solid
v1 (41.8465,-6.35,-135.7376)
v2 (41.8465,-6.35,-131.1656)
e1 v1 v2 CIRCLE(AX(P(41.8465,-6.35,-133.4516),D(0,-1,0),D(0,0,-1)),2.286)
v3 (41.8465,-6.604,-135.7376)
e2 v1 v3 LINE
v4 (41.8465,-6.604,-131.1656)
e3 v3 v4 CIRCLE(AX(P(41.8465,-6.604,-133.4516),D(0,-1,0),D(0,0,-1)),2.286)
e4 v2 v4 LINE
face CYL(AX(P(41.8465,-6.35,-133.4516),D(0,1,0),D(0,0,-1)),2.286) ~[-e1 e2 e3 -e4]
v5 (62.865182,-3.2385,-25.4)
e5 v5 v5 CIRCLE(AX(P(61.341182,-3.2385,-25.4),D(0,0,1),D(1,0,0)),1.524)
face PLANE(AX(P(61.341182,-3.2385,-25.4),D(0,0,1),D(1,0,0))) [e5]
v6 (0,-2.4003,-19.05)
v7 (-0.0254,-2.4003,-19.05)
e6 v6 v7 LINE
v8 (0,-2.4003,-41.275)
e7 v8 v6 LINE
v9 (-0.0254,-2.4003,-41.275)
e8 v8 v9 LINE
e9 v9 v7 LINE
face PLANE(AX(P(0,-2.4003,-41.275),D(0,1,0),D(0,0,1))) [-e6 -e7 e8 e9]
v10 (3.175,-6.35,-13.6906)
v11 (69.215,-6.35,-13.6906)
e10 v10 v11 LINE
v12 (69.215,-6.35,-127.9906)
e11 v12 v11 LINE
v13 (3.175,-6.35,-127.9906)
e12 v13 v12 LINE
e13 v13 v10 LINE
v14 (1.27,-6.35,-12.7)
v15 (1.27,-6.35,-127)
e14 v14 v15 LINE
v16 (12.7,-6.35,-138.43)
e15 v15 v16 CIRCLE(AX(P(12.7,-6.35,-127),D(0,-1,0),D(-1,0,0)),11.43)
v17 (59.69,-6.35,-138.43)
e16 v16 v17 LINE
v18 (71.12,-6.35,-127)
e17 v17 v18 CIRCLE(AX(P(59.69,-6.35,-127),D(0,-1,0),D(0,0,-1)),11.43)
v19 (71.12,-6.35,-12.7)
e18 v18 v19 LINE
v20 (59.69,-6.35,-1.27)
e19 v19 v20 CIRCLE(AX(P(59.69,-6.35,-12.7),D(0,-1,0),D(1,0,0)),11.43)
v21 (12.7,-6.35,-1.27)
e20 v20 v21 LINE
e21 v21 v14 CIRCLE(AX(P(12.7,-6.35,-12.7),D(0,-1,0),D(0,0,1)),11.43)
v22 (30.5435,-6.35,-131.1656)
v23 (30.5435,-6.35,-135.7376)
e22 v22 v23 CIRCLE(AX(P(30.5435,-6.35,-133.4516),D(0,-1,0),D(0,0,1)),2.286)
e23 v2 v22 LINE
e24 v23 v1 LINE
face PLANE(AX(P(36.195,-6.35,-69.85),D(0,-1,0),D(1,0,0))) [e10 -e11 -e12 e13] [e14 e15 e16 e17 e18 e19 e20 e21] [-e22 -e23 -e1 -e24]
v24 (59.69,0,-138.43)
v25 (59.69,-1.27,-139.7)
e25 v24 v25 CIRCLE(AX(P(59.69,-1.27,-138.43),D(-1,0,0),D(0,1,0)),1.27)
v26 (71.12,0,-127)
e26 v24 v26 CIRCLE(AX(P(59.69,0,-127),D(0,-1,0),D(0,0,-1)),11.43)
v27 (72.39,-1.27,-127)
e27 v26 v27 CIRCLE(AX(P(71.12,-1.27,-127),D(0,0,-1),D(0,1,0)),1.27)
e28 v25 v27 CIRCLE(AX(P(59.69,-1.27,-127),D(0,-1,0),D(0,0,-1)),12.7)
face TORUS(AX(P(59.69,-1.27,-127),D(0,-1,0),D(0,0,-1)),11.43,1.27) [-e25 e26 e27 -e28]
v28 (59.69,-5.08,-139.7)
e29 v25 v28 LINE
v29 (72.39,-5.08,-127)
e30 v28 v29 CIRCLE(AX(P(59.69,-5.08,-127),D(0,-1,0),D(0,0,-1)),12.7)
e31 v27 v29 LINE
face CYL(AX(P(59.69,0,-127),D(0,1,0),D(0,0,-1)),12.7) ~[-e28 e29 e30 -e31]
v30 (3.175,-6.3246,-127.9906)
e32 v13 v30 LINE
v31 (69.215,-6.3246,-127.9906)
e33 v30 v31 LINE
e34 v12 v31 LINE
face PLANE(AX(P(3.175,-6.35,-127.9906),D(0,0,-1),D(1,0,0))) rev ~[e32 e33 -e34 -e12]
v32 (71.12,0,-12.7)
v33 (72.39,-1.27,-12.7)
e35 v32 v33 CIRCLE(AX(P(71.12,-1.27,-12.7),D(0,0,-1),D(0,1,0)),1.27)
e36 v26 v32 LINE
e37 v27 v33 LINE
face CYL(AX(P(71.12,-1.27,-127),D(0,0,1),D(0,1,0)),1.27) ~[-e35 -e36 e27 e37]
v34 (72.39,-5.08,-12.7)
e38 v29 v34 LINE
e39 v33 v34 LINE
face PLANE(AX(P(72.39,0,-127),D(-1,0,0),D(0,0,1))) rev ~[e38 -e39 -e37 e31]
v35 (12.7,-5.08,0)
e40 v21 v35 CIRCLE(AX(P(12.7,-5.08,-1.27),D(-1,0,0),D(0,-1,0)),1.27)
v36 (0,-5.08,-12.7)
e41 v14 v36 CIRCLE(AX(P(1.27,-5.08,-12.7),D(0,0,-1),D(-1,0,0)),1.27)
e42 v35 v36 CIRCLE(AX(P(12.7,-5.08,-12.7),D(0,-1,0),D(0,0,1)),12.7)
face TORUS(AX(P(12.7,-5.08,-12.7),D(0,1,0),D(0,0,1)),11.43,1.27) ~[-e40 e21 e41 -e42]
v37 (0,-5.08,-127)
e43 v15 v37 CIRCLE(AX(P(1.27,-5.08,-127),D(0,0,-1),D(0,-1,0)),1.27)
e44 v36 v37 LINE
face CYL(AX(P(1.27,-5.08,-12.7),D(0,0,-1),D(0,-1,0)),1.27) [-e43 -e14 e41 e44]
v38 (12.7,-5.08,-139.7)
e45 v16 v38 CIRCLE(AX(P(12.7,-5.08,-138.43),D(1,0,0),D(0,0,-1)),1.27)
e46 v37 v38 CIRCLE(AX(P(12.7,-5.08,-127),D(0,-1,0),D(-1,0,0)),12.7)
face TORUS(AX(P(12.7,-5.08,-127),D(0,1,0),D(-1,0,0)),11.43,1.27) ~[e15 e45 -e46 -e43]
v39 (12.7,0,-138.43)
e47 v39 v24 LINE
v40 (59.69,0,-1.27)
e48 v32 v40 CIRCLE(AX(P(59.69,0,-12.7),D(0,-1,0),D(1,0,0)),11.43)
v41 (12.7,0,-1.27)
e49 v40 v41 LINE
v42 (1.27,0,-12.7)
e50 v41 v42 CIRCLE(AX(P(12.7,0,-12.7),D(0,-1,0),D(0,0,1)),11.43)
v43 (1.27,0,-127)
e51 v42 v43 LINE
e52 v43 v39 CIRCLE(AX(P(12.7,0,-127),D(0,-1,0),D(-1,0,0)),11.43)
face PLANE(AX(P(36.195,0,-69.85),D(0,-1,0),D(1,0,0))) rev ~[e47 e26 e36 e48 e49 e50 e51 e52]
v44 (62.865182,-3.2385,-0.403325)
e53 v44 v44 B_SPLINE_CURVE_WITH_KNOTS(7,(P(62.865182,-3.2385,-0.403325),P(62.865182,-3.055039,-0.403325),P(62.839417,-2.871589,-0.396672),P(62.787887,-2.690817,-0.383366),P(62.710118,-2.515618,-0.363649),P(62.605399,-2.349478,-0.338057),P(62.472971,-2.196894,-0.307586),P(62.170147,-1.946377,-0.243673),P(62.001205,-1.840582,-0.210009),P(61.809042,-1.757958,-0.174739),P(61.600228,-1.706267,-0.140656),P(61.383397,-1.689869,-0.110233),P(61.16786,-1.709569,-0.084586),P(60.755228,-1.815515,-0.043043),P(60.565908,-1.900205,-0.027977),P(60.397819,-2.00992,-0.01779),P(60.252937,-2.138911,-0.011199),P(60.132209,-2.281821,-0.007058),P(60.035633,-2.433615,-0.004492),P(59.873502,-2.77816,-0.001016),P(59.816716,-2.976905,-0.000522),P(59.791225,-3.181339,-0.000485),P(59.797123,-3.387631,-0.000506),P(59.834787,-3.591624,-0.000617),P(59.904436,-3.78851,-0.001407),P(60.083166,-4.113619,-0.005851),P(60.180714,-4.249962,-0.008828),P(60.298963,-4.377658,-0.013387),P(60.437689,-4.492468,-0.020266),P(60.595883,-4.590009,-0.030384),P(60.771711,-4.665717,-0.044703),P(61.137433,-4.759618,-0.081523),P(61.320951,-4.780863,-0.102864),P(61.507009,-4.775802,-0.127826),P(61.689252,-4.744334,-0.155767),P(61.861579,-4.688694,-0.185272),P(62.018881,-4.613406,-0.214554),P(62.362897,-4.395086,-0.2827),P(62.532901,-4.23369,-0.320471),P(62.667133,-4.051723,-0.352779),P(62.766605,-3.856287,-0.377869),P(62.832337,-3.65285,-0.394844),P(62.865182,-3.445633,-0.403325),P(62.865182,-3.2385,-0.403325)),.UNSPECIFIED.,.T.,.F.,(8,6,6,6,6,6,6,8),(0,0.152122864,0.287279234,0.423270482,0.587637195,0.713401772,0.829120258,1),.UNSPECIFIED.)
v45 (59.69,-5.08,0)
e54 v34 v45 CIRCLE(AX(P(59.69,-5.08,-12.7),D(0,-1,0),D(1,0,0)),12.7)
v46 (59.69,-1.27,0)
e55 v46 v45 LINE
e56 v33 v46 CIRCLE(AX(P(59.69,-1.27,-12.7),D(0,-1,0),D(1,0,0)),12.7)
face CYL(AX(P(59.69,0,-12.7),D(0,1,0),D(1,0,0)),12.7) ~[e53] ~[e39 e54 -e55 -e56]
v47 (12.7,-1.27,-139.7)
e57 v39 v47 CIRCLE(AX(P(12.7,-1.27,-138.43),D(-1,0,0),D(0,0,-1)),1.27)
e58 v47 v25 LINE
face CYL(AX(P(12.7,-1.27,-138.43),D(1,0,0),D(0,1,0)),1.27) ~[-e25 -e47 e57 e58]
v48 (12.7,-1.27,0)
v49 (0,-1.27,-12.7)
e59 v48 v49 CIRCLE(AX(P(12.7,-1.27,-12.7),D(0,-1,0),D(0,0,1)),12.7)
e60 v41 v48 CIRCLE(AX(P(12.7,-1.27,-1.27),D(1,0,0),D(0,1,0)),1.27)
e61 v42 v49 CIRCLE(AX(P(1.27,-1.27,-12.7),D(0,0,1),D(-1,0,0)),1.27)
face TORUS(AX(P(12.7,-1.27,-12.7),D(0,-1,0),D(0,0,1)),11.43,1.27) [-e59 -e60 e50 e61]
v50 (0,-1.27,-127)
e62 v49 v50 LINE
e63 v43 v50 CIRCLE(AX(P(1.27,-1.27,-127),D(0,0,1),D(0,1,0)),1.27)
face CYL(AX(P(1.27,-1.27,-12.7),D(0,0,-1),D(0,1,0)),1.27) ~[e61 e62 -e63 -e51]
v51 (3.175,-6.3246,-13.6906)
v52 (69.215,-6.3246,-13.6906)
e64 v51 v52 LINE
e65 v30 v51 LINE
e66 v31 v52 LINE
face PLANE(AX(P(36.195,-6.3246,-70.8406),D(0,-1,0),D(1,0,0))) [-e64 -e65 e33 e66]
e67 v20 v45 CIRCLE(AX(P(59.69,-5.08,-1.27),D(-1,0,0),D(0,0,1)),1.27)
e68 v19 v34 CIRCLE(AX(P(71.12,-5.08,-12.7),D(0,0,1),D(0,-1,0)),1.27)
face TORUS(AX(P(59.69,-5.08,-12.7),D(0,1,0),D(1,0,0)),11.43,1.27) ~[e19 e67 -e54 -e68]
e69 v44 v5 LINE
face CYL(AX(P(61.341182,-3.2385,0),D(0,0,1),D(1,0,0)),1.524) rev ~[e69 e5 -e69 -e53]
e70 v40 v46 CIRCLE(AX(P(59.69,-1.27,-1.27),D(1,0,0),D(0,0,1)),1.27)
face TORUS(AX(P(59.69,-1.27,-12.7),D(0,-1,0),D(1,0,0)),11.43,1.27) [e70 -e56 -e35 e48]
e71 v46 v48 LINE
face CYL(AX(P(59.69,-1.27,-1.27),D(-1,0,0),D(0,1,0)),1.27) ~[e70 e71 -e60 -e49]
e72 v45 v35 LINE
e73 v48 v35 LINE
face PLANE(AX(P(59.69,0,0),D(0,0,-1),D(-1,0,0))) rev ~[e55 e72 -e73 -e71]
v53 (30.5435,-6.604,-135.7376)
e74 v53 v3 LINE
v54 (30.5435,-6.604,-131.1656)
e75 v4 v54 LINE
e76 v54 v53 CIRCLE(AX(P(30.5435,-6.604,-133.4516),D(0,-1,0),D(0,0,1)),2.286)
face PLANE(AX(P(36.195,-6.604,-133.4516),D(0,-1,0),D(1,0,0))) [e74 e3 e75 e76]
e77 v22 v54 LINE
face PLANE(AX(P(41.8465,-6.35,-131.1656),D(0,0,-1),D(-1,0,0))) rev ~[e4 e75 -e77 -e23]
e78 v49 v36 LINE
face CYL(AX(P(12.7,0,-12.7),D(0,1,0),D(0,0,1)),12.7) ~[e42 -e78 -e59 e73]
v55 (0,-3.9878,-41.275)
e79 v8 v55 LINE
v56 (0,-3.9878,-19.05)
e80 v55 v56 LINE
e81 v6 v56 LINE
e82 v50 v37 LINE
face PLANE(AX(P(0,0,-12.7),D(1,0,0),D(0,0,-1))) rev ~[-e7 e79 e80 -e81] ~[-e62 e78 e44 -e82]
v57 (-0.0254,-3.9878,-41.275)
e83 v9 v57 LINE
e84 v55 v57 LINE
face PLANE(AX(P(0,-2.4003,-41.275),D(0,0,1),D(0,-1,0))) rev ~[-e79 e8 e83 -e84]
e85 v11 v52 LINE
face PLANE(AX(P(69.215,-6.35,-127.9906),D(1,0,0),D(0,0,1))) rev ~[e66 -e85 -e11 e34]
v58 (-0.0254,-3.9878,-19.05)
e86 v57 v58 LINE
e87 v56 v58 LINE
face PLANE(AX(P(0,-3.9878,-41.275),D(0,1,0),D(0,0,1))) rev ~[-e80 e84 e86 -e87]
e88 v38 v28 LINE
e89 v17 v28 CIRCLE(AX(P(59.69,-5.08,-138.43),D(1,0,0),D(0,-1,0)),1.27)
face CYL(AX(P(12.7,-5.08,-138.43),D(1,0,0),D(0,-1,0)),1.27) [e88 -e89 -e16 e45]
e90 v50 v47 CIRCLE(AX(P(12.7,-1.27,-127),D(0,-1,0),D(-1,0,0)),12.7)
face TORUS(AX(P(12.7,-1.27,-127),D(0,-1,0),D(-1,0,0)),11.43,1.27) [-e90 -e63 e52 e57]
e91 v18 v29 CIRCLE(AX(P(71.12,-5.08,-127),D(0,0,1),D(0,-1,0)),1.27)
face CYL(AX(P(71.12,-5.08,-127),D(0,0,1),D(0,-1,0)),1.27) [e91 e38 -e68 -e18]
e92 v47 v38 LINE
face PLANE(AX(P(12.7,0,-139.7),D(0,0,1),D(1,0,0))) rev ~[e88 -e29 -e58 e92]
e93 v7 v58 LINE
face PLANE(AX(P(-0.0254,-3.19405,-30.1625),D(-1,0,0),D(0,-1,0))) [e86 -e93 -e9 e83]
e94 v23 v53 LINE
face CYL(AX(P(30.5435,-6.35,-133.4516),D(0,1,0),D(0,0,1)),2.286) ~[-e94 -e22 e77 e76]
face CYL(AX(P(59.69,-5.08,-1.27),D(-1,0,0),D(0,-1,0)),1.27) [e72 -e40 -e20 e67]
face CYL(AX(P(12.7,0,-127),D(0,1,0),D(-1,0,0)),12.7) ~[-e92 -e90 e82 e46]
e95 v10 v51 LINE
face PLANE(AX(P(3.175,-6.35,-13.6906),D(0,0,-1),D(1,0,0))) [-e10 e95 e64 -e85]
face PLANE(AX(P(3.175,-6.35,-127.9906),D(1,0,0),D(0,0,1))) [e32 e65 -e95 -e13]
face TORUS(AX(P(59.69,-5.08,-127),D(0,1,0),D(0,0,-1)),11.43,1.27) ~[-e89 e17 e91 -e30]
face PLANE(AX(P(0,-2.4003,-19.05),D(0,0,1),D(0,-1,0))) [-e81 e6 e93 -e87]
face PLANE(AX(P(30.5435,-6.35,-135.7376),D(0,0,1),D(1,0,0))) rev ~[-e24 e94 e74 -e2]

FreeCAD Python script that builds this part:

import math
import FreeCAD as App
import Part
import Sketcher
from FreeCAD import Vector
Q = App.Units.Quantity


def edges_at(feature, points):
    """Names of the edges that pass closest to the given points."""
    edges = feature.Shape.Edges
    near = lambda p: min(range(len(edges)), key=lambda i: edges[i].distToShape(Part.Vertex(*p))[0])
    return sorted({f"Edge{near(p) + 1}" for p in points})


def add_polygon(sketch, points):
    """Adds a closed chain of lines whose ends are joined by coincident constraints."""
    first, n = sketch.GeometryCount, len(points)
    for a, b in zip(points, points[1:] + points[:1]):
        sketch.addGeometry(Part.LineSegment(App.Vector(*a, 0), App.Vector(*b, 0)), False)
    for i in range(n):
        sketch.addConstraint(Sketcher.Constraint("Coincident", first + i, 2, first + (i + 1) % n, 1))

doc = App.newDocument("Part")
body = doc.addObject("PartDesign::Body", "Body")

# Sketch on XZ plane
sketch1 = body.newObject("Sketcher::SketchObject", "Sketch")
sketch1.AttachmentSupport = (doc.getObject("XZ_Plane"), [""])
sketch1.MapMode = "FlatFace"
sketch1.addGeometry([
    Part.LineSegment(Vector(60, 0, 0), Vector(13, 0, 0)),  # 0
    Part.ArcOfCircle(Part.Circle(Vector(13, -13, 0), Vector(0, 0, 1), 13), math.radians(90), math.radians(180)),  # 1
    Part.LineSegment(Vector(0, -13, 0), Vector(0, -127, 0)),  # 2
    Part.ArcOfCircle(Part.Circle(Vector(13, -127, 0), Vector(0, 0, 1), 13), math.radians(180), math.radians(270)),  # 3
    Part.LineSegment(Vector(13, -140, 0), Vector(60, -140, 0)),  # 4
    Part.ArcOfCircle(Part.Circle(Vector(60, -127, 0), Vector(0, 0, 1), 13), math.radians(-90), math.radians(0)),  # 5
    Part.LineSegment(Vector(72, -127, 0), Vector(72, -13, 0)),  # 6
    Part.ArcOfCircle(Part.Circle(Vector(60, -13, 0), Vector(0, 0, 1), 13), math.radians(0), math.radians(90)),  # 7
], False)
sketch1.addConstraint([
    Sketcher.Constraint("Tangent", 0, 2, 1, 1),
    Sketcher.Constraint("Tangent", 1, 2, 2, 1),
    Sketcher.Constraint("Tangent", 2, 2, 3, 1),
    Sketcher.Constraint("Tangent", 3, 2, 4, 1),
    Sketcher.Constraint("Tangent", 4, 2, 5, 1),
    Sketcher.Constraint("Tangent", 5, 2, 6, 1),
    Sketcher.Constraint("Tangent", 6, 2, 7, 1),
    Sketcher.Constraint("Tangent", 7, 2, 0, 1),
    Sketcher.Constraint("Horizontal", 0),
    Sketcher.Constraint("Vertical", 2),
    Sketcher.Constraint("Horizontal", 4),
    Sketcher.Constraint("Vertical", 6),
    Sketcher.Constraint("Equal", 1, 3),
    Sketcher.Constraint("Equal", 3, 5),
    Sketcher.Constraint("Equal", 5, 7),
    Sketcher.Constraint("PointOnObject", 0, 2, -1),
    Sketcher.Constraint("PointOnObject", 1, 2, -2),
    Sketcher.Constraint("Radius", 1, Q("0.5 in")),
    Sketcher.Constraint("DistanceY", 2, 2, 2, 1, Q("4.5 in")),
    Sketcher.Constraint("DistanceX", 0, 2, 0, 1, Q("1.85 in")),
])
pad1 = body.newObject("PartDesign::Pad", "Pad")
pad1.Profile = sketch1
pad1.Length = Q("0.25 in")

# Sketch on XZ plane
sketch2 = body.newObject("Sketcher::SketchObject", "Sketch001")
sketch2.AttachmentSupport = (doc.getObject("XZ_Plane"), [""])
sketch2.MapMode = "FlatFace"
sketch2.AttachmentOffset = App.Placement(Vector(0, 0, 0.25 * 25.4), App.Rotation())
sketch2.addGeometry([
    Part.LineSegment(Vector(41.8, -131.2, 0), Vector(30.5, -131.2, 0)),
    Part.ArcOfCircle(Part.Circle(Vector(30.5, -133.5, 0), Vector(0, 0, 1), 2.3), math.radians(90), math.radians(270)),
    Part.LineSegment(Vector(30.5, -135.7, 0), Vector(41.8, -135.7, 0)),
    Part.ArcOfCircle(Part.Circle(Vector(41.8, -133.5, 0), Vector(0, 0, 1), 2.3), math.radians(-90), math.radians(90)),
], False)
sketch2.addConstraint([
    Sketcher.Constraint("Tangent", 0, 2, 1, 1),
    Sketcher.Constraint("Tangent", 1, 2, 2, 1),
    Sketcher.Constraint("Tangent", 2, 2, 3, 1),
    Sketcher.Constraint("Tangent", 3, 2, 0, 1),
    Sketcher.Constraint("Horizontal", 0),
    Sketcher.Constraint("Horizontal", 2),
    Sketcher.Constraint("Radius", 1, Q("0.09 in")),
    Sketcher.Constraint("DistanceX", 0, 2, 0, 1, Q("0.445 in")),
    Sketcher.Constraint("DistanceY", 1, 3, -1, 1, Q("5.254 in")),
    Sketcher.Constraint("DistanceX", -1, 1, 1, 3, Q("1.2025 in")),
])
pad2 = body.newObject("PartDesign::Pad", "Pad001")
pad2.Profile = sketch2
pad2.Length = Q("0.01 in")
doc.recompute()

fillet = body.newObject("PartDesign::Fillet", "Fillet")
fillet.Base = (pad2, edges_at(pad2, [(72.39, -6.35, -69.85), (72.39, 0, -69.85)]))
fillet.Radius = Q("0.05 in")

# Sketch on XZ plane
sketch3 = body.newObject("Sketcher::SketchObject", "Sketch002")
sketch3.AttachmentSupport = (doc.getObject("XZ_Plane"), [""])
sketch3.MapMode = "FlatFace"
sketch3.AttachmentOffset = App.Placement(Vector(0, 0, 0.25 * 25.4), App.Rotation())
add_polygon(sketch3, [(3, -14), (3, -128), (69, -128), (69, -14)])  # lines 0-3
sketch3.addConstraint([
    Sketcher.Constraint("Vertical", 0),
    Sketcher.Constraint("Horizontal", 1),
    Sketcher.Constraint("Vertical", 2),
    Sketcher.Constraint("Horizontal", 3),
    Sketcher.Constraint("DistanceX", 1, 1, 1, 2, Q("2.6 in")),
    Sketcher.Constraint("DistanceY", 0, 2, 0, 1, Q("4.5 in")),
    Sketcher.Constraint("DistanceX", -1, 1, 0, 2, Q("0.125 in")),
    Sketcher.Constraint("DistanceY", 0, 2, -1, 1, Q("5.039 in")),
])
pocket1 = body.newObject("PartDesign::Pocket", "Pocket")
pocket1.Profile = sketch3
pocket1.Length = Q("0.001 in")

# Sketch on YZ plane
sketch4 = body.newObject("Sketcher::SketchObject", "Sketch003")
sketch4.AttachmentSupport = (doc.getObject("YZ_Plane"), [""])
sketch4.MapMode = "FlatFace"
add_polygon(sketch4, [(-2.4, -19.1), (-2.4, -41.3), (-4, -41.3), (-4, -19.1)])  # lines 0-3
sketch4.addConstraint([
    Sketcher.Constraint("Vertical", 0),
    Sketcher.Constraint("Horizontal", 1),
    Sketcher.Constraint("Vertical", 2),
    Sketcher.Constraint("Horizontal", 3),
    Sketcher.Constraint("DistanceX", 1, 2, 1, 1, Q("0.0625 in")),
    Sketcher.Constraint("DistanceY", 0, 2, 0, 1, Q("0.875 in")),
    Sketcher.Constraint("DistanceY", 2, 2, -1, 1, Q("0.75 in")),
    Sketcher.Constraint("DistanceX", 1, 2, -1, 1, Q("0.157 in")),
])
pad3 = body.newObject("PartDesign::Pad", "Pad002")
pad3.Profile = sketch4
pad3.Length = Q("0.001 in")
pad3.Reversed = True

# Sketch on XY plane
sketch5 = body.newObject("Sketcher::SketchObject", "Sketch004")
sketch5.AttachmentSupport = (doc.getObject("XY_Plane"), [""])
sketch5.MapMode = "FlatFace"
sketch5.addGeometry(Part.Circle(Vector(61.3, -3.2, 0), Vector(0, 0, 1), 1.5), False)
sketch5.addConstraint([
    Sketcher.Constraint("Diameter", 0, Q("0.12 in")),
    Sketcher.Constraint("DistanceY", 0, 3, -1, 1, Q("0.1275 in")),
    Sketcher.Constraint("DistanceX", -1, 1, 0, 3, 61.341182),
])
pocket2 = body.newObject("PartDesign::Pocket", "Pocket001")
pocket2.Profile = sketch5
pocket2.Length = Q("1 in")

doc.recompute()
